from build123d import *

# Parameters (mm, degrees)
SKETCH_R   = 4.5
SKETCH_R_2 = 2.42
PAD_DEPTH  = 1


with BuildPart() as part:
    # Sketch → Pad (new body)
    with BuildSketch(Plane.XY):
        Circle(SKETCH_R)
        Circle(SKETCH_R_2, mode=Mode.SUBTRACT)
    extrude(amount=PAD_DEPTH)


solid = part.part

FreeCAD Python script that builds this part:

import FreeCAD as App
import Part
import Sketcher
from FreeCAD import Vector

doc = App.newDocument("Part")
body = doc.addObject("PartDesign::Body", "Body")

# Sketch on XY plane
sketch1 = body.newObject("Sketcher::SketchObject", "Sketch")
sketch1.AttachmentSupport = (doc.getObject("XY_Plane"), [""])
sketch1.MapMode = "FlatFace"
sketch1.addGeometry([
    Part.Circle(Vector(0, 0, 0), Vector(0, 0, 1), 4.5),
    Part.Circle(Vector(0, 0, 0), Vector(0, 0, 1), 2.4),
], False)
sketch1.addConstraint([
    Sketcher.Constraint("Coincident", 0, 3, -1, 1),
    Sketcher.Constraint("Coincident", 1, 3, -1, 1),
    Sketcher.Constraint("Diameter", 0, 9.0),
    Sketcher.Constraint("Diameter", 1, 4.84),
])
pad1 = body.newObject("PartDesign::Pad", "Pad")
pad1.Profile = sketch1
pad1.Length = 1

doc.recompute()
